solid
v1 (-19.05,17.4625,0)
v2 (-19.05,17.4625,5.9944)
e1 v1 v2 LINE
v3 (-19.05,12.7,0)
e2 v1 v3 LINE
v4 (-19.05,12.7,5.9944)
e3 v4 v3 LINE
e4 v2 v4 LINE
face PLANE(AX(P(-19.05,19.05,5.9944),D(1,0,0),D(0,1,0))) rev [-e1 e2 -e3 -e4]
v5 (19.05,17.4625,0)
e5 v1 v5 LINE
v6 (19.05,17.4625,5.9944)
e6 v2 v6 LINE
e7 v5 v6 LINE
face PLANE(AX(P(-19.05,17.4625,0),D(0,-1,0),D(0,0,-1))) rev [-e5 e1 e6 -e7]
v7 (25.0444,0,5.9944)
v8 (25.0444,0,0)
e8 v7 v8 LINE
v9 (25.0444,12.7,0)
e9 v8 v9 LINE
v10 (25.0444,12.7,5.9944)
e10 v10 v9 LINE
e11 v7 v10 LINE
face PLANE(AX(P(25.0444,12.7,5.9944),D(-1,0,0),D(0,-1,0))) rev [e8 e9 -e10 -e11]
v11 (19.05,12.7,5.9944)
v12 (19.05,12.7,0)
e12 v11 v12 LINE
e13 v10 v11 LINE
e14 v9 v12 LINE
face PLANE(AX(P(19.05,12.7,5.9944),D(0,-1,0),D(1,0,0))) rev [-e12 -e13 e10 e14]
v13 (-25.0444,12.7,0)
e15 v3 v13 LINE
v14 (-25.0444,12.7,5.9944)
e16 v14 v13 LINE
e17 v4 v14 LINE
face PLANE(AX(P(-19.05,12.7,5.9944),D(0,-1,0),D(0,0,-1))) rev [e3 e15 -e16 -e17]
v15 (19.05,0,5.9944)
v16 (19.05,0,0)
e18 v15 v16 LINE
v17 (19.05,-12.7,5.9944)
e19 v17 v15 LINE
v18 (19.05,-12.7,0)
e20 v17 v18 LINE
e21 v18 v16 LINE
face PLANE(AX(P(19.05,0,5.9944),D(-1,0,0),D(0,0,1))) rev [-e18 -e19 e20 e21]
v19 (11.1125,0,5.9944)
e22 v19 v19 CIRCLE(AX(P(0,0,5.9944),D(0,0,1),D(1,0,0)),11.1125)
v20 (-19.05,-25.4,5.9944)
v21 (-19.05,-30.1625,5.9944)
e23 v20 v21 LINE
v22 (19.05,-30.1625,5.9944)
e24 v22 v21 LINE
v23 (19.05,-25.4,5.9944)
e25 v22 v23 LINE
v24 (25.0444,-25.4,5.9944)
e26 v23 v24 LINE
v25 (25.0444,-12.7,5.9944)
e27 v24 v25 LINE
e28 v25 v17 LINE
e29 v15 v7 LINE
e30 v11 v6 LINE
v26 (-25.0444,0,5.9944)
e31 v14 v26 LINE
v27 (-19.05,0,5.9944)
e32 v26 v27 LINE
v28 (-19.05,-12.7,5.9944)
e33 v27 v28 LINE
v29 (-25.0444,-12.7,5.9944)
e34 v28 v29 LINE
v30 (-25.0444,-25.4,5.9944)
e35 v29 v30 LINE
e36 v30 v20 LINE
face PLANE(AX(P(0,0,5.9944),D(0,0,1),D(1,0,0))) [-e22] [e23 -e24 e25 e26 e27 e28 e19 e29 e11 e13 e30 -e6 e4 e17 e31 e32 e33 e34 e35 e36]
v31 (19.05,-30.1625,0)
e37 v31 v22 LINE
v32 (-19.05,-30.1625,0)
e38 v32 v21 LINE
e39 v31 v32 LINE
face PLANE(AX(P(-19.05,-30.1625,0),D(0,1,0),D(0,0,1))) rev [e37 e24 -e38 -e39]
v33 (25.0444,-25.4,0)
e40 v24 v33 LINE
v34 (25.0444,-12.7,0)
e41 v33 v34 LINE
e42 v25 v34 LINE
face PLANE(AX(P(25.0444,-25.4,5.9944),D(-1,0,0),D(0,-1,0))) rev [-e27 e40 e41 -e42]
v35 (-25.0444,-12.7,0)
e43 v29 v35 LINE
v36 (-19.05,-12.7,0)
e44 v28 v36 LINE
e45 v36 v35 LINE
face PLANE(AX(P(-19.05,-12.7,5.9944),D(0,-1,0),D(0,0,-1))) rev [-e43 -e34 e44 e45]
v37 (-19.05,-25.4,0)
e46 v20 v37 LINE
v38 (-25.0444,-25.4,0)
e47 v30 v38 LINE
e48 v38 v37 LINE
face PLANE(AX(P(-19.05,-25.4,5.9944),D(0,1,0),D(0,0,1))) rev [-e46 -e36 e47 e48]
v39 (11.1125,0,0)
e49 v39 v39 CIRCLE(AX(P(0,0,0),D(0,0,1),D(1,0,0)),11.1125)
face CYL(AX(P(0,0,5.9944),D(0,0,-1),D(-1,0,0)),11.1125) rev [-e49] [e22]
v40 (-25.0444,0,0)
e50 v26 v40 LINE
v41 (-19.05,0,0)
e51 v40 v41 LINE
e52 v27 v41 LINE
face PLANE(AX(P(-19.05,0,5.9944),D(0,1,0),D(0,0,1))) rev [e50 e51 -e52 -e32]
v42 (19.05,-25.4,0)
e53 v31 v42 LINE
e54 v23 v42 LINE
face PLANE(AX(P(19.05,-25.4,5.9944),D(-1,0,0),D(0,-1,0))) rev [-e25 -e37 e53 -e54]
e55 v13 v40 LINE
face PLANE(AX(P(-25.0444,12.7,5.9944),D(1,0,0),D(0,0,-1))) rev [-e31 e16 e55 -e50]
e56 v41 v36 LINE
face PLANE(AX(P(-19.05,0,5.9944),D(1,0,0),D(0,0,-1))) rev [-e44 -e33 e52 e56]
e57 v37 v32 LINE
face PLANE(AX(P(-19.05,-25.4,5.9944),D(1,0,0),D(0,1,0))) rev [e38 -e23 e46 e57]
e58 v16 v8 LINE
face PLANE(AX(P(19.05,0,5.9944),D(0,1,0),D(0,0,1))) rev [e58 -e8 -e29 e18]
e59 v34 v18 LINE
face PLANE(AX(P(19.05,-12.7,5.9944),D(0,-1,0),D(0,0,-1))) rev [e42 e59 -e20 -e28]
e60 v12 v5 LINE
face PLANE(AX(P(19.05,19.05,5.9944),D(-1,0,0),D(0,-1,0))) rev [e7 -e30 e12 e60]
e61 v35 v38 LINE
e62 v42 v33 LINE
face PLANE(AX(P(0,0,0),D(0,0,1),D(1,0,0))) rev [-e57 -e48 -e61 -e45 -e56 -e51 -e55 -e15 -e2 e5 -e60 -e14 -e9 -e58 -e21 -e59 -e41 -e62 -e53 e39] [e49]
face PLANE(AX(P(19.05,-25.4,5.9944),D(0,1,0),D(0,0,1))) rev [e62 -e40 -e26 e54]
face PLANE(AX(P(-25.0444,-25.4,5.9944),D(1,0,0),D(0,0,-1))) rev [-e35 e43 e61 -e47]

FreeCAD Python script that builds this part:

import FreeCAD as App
import Part
import Sketcher
from FreeCAD import Vector
Q = App.Units.Quantity

doc = App.newDocument("Part")
body = doc.addObject("PartDesign::Body", "Body")

# Sketch on XY plane
sketch1 = body.newObject("Sketcher::SketchObject", "Sketch")
sketch1.AttachmentSupport = (doc.getObject("XY_Plane"), [""])
sketch1.MapMode = "FlatFace"
sketch1.addGeometry([
    Part.LineSegment(Vector(19.05, 19.05, 0), Vector(-19.05, 19.05, 0)),  # 0
    Part.LineSegment(Vector(-19.05, 19.05, 0), Vector(-19.05, 12.7, 0)),  # 1
    Part.LineSegment(Vector(-19.05, 12.7, 0), Vector(-25.0444, 12.7, 0)),  # 2
    Part.LineSegment(Vector(-25.0444, 12.7, 0), Vector(-25.0444, 0, 0)),  # 3
    Part.LineSegment(Vector(-25.0444, 0, 0), Vector(-19.05, 0, 0)),  # 4
    Part.LineSegment(Vector(-19.05, 0, 0), Vector(-19.05, -12.7, 0)),  # 5
    Part.LineSegment(Vector(-19.05, -12.7, 0), Vector(-25.0444, -12.7, 0)),  # 6
    Part.LineSegment(Vector(-25.0444, -12.7, 0), Vector(-25.0444, -25.4, 0)),  # 7
    Part.LineSegment(Vector(-25.0444, -25.4, 0), Vector(-19.05, -25.4, 0)),  # 8
    Part.LineSegment(Vector(-19.05, -25.4, 0), Vector(-19.05, -31.75, 0)),  # 9
    Part.LineSegment(Vector(-19.05, -31.75, 0), Vector(19.05, -31.75, 0)),  # 10
    Part.LineSegment(Vector(19.05, -31.75, 0), Vector(19.05, -25.4, 0)),  # 11
    Part.LineSegment(Vector(19.05, -25.4, 0), Vector(25.0444, -25.4, 0)),  # 12
    Part.LineSegment(Vector(25.0444, -25.4, 0), Vector(25.0444, -12.7, 0)),  # 13
    Part.LineSegment(Vector(25.0444, -12.7, 0), Vector(19.05, -12.7, 0)),  # 14
    Part.LineSegment(Vector(19.05, -12.7, 0), Vector(19.05, 0, 0)),  # 15
    Part.LineSegment(Vector(19.05, 0, 0), Vector(25.0444, 0, 0)),  # 16
    Part.LineSegment(Vector(25.0444, 0, 0), Vector(25.0444, 12.7, 0)),  # 17
    Part.LineSegment(Vector(25.0444, 12.7, 0), Vector(19.05, 12.7, 0)),  # 18
    Part.LineSegment(Vector(19.05, 12.7, 0), Vector(19.05, 19.05, 0)),  # 19
    Part.Circle(Vector(0, 0, 0), Vector(0, 0, 1), 11.1125),  # 20
], False)
sketch1.addConstraint([
    Sketcher.Constraint("Coincident", 0, 2, 1, 1),
    Sketcher.Constraint("Coincident", 1, 2, 2, 1),
    Sketcher.Constraint("Coincident", 2, 2, 3, 1),
    Sketcher.Constraint("Coincident", 3, 2, 4, 1),
    Sketcher.Constraint("Coincident", 4, 2, 5, 1),
    Sketcher.Constraint("Coincident", 5, 2, 6, 1),
    Sketcher.Constraint("Coincident", 6, 2, 7, 1),
    Sketcher.Constraint("Coincident", 7, 2, 8, 1),
    Sketcher.Constraint("Coincident", 8, 2, 9, 1),
    Sketcher.Constraint("Coincident", 9, 2, 10, 1),
    Sketcher.Constraint("Coincident", 10, 2, 11, 1),
    Sketcher.Constraint("Coincident", 11, 2, 12, 1),
    Sketcher.Constraint("Coincident", 12, 2, 13, 1),
    Sketcher.Constraint("Coincident", 13, 2, 14, 1),
    Sketcher.Constraint("Coincident", 14, 2, 15, 1),
    Sketcher.Constraint("Coincident", 15, 2, 16, 1),
    Sketcher.Constraint("Coincident", 16, 2, 17, 1),
    Sketcher.Constraint("Coincident", 17, 2, 18, 1),
    Sketcher.Constraint("Coincident", 18, 2, 19, 1),
    Sketcher.Constraint("Coincident", 19, 2, 0, 1),
    Sketcher.Constraint("Horizontal", 0),
    Sketcher.Constraint("Vertical", 1),
    Sketcher.Constraint("Horizontal", 2),
    Sketcher.Constraint("Vertical", 3),
    Sketcher.Constraint("Horizontal", 4),
    Sketcher.Constraint("Vertical", 5),
    Sketcher.Constraint("Horizontal", 6),
    Sketcher.Constraint("Vertical", 7),
    Sketcher.Constraint("Horizontal", 8),
    Sketcher.Constraint("Vertical", 9),
    Sketcher.Constraint("Horizontal", 10),
    Sketcher.Constraint("Vertical", 11),
    Sketcher.Constraint("Horizontal", 12),
    Sketcher.Constraint("Vertical", 13),
    Sketcher.Constraint("Horizontal", 14),
    Sketcher.Constraint("Vertical", 15),
    Sketcher.Constraint("Horizontal", 16),
    Sketcher.Constraint("Vertical", 17),
    Sketcher.Constraint("Horizontal", 18),
    Sketcher.Constraint("Vertical", 19),
    Sketcher.Constraint("Coincident", 20, 3, -1, 1),
    Sketcher.Constraint("Symmetric", 2, 2, 13, 2, -1, 1),
    Sketcher.Constraint("Symmetric", 4, 2, 15, 2, -1, 1),
    Sketcher.Constraint("Symmetric", 6, 2, 17, 2, -1, 1),
    Sketcher.Constraint("Symmetric", 8, 2, 11, 2, -2),
    Sketcher.Constraint("Symmetric", 6, 2, 13, 2, -2),
    Sketcher.Constraint("PointOnObject", 3, 2, -1),
    Sketcher.Constraint("Vertical", 1, 2, 4, 2),
    Sketcher.Constraint("Vertical", 5, 2, 8, 2),
    Sketcher.Constraint("Vertical", 15, 2, 18, 2),
    Sketcher.Constraint("Equal", 5, 7),
    Sketcher.Constraint("Equal", 1, 9),
    Sketcher.Constraint("Diameter", 20, Q("0.875 in")),
    Sketcher.Constraint("DistanceX", 0, 2, 0, 1, Q("1.5 in")),
    Sketcher.Constraint("DistanceY", 3, 2, 3, 1, Q("0.5 in")),
    Sketcher.Constraint("DistanceY", 1, 2, 1, 1, Q("0.25 in")),
    Sketcher.Constraint("DistanceX", 2, 2, 2, 1, Q("0.236 in")),
])
pad1 = body.newObject("PartDesign::Pad", "Pad")
pad1.Profile = sketch1
pad1.Length = Q("0.236 in")

# Sketch on XY plane
sketch2 = body.newObject("Sketcher::SketchObject", "Sketch001")
sketch2.AttachmentSupport = (doc.getObject("XY_Plane"), [""])
sketch2.MapMode = "FlatFace"
sketch2.AttachmentOffset = App.Placement(Vector(0, 0, 0.236 * 25.4), App.Rotation())
sketch2.addGeometry([
    Part.LineSegment(Vector(-19.05, -30.1625, 0), Vector(-19.05, -31.75, 0)),  # 0
    Part.LineSegment(Vector(-19.05, -31.75, 0), Vector(19.05, -31.75, 0)),  # 1
    Part.LineSegment(Vector(19.05, -31.75, 0), Vector(19.05, -30.1625, 0)),  # 2
    Part.LineSegment(Vector(19.05, -30.1625, 0), Vector(-19.05, -30.1625, 0)),  # 3
    Part.LineSegment(Vector(-19.05, 19.05, 0), Vector(-19.05, 17.4625, 0)),  # 4
    Part.LineSegment(Vector(-19.05, 17.4625, 0), Vector(19.05, 17.4625, 0)),  # 5
    Part.LineSegment(Vector(19.05, 17.4625, 0), Vector(19.05, 19.05, 0)),  # 6
    Part.LineSegment(Vector(19.05, 19.05, 0), Vector(-19.05, 19.05, 0)),  # 7
], False)
sketch2.addConstraint([
    Sketcher.Constraint("Coincident", 0, 2, 1, 1),
    Sketcher.Constraint("Coincident", 1, 2, 2, 1),
    Sketcher.Constraint("Coincident", 2, 2, 3, 1),
    Sketcher.Constraint("Coincident", 3, 2, 0, 1),
    Sketcher.Constraint("Coincident", 4, 2, 5, 1),
    Sketcher.Constraint("Coincident", 5, 2, 6, 1),
    Sketcher.Constraint("Coincident", 6, 2, 7, 1),
    Sketcher.Constraint("Coincident", 7, 2, 4, 1),
    Sketcher.Constraint("Vertical", 0),
    Sketcher.Constraint("Horizontal", 1),
    Sketcher.Constraint("Vertical", 2),
    Sketcher.Constraint("Horizontal", 3),
    Sketcher.Constraint("Vertical", 4),
    Sketcher.Constraint("Horizontal", 5),
    Sketcher.Constraint("Vertical", 6),
    Sketcher.Constraint("Horizontal", 7),
    Sketcher.Constraint("Vertical", 3, 2, 4, 2),
    Sketcher.Constraint("Vertical", 2, 2, 5, 2),
    Sketcher.Constraint("Equal", 2, 4),
    Sketcher.Constraint("DistanceX", 1, 1, 1, 2, Q("1.5 in")),
    Sketcher.Constraint("DistanceY", 1, 2, 6, 2, Q("2 in")),
    Sketcher.Constraint("DistanceY", 0, 2, 0, 1, Q("0.0625 in")),
    Sketcher.Constraint("DistanceX", 0, 2, -1, 1, Q("0.75 in")),
    Sketcher.Constraint("DistanceY", 0, 2, -1, 1, Q("1.25 in")),
])
pocket1 = body.newObject("PartDesign::Pocket", "Pocket")
pocket1.Profile = sketch2
pocket1.Type = "ThroughAll"

doc.recompute()
